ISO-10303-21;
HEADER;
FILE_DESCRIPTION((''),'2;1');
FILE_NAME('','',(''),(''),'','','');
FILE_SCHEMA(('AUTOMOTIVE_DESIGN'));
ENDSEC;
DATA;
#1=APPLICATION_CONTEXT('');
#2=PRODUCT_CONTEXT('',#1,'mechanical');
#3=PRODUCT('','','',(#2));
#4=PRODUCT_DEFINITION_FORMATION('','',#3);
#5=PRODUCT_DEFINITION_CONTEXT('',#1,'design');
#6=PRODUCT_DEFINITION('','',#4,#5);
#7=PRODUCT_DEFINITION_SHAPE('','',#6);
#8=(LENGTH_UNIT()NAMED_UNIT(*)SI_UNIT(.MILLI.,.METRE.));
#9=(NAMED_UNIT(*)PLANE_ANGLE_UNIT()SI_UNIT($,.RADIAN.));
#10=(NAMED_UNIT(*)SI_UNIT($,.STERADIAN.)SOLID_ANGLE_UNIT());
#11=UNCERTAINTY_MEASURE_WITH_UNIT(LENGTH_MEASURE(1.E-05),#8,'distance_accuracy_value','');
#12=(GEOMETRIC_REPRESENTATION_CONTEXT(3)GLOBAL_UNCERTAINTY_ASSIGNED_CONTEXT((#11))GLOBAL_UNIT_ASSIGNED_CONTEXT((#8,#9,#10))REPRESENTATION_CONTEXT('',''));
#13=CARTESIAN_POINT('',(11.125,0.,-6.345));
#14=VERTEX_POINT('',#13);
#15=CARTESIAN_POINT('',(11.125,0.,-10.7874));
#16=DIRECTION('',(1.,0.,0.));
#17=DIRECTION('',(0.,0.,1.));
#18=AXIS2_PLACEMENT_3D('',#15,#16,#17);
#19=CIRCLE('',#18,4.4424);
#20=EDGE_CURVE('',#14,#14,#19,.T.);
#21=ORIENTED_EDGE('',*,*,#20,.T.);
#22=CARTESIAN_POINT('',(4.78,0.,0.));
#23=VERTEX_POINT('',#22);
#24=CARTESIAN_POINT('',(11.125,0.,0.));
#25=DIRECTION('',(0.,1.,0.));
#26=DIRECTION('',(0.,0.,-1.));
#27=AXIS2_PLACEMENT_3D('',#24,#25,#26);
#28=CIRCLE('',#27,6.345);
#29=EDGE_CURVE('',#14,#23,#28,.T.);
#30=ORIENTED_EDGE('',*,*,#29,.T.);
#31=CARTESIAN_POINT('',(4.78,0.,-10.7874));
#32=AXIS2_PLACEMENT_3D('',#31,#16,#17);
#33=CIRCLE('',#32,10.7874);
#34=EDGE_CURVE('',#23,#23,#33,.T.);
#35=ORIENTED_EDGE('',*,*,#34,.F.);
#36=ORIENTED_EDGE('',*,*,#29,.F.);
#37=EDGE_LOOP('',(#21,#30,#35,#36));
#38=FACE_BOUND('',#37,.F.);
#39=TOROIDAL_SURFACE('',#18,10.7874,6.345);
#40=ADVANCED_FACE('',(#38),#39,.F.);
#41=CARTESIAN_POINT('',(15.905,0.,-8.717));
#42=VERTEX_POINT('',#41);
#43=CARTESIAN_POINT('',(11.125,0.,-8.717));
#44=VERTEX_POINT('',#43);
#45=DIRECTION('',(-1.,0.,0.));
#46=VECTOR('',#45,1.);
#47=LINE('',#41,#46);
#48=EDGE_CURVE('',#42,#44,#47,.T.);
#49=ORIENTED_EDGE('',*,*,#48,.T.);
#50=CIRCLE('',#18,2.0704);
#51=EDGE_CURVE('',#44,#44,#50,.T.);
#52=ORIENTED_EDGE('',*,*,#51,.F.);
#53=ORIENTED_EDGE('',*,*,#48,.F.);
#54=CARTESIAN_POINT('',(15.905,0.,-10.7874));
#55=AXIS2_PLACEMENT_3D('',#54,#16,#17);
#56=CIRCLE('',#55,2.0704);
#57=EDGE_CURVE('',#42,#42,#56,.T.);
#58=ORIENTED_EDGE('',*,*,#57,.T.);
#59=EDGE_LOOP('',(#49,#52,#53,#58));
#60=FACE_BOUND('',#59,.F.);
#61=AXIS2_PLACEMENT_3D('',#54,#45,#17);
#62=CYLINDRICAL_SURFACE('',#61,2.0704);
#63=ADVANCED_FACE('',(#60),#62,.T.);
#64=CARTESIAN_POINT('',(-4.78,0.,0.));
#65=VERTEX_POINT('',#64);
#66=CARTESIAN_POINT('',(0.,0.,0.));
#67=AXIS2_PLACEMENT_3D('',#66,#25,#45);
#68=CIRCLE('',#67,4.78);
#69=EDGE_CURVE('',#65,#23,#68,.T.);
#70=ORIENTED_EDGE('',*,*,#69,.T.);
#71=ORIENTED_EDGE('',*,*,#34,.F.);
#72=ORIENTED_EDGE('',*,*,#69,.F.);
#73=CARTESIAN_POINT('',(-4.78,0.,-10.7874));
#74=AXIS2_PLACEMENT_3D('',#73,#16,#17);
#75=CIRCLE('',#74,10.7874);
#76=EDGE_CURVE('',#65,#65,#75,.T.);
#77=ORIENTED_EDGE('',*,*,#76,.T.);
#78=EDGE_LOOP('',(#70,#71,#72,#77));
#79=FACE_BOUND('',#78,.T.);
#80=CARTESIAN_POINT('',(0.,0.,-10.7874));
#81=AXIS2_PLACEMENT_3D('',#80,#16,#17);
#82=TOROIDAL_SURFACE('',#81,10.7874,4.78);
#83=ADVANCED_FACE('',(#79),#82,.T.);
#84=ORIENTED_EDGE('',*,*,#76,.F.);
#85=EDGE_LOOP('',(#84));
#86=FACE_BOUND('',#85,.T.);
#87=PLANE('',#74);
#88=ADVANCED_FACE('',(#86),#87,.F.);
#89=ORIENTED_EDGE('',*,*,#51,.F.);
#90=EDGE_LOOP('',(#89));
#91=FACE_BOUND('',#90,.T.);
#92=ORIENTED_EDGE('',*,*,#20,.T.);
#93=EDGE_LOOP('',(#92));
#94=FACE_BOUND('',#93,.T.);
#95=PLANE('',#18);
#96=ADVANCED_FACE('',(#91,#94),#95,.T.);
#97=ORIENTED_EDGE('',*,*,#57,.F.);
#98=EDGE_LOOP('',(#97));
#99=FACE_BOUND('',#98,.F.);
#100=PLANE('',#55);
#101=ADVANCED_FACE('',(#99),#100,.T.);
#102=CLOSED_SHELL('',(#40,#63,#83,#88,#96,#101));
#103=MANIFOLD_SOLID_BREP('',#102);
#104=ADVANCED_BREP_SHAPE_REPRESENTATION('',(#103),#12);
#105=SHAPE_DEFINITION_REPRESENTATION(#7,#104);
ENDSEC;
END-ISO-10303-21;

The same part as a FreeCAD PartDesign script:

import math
import FreeCAD as App
import Part
import Sketcher
from FreeCAD import Vector

doc = App.newDocument("Part")
body = doc.addObject("PartDesign::Body", "Body")

# Sketch on XZ plane
sketch1 = body.newObject("Sketcher::SketchObject", "Sketch")
sketch1.AttachmentSupport = (doc.getObject("XZ_Plane"), [""])
sketch1.MapMode = "FlatFace"
sketch1.addGeometry([
    Part.ArcOfCircle(Part.Circle(Vector(0, 0, 0), Vector(0, 0, 1), 4.8), math.radians(0), math.radians(180)),  # 0
    Part.ArcOfCircle(Part.Circle(Vector(11.1, 0, 0), Vector(0, 0, 1), 6.3), math.radians(180), math.radians(270)),  # 1
    Part.LineSegment(Vector(11.1, -6.3, 0), Vector(11.1, -8.7, 0)),  # 2
    Part.LineSegment(Vector(11.1, -8.7, 0), Vector(15.9, -8.7, 0)),  # 3
    Part.LineSegment(Vector(15.9, -8.7, 0), Vector(15.9, -10.8, 0)),  # 4
    Part.LineSegment(Vector(15.9, -10.8, 0), Vector(-4.8, -10.8, 0)),  # 5
    Part.LineSegment(Vector(-4.8, -10.8, 0), Vector(-4.8, 0, 0)),  # 6
], False)
sketch1.addGeometry(Part.LineSegment(Vector(-4.8, -10.8, 0), Vector(15.9, -10.8, 0)), True)  # axis
sketch1.addConstraint([
    Sketcher.Constraint("Tangent", 0, 1, 1, 1),
    Sketcher.Constraint("Coincident", 1, 2, 2, 1),
    Sketcher.Constraint("Coincident", 2, 2, 3, 1),
    Sketcher.Constraint("Coincident", 3, 2, 4, 1),
    Sketcher.Constraint("Coincident", 4, 2, 5, 1),
    Sketcher.Constraint("Coincident", 5, 2, 6, 1),
    Sketcher.Constraint("Tangent", 6, 2, 0, 2),
    Sketcher.Constraint("Vertical", 2),
    Sketcher.Constraint("Horizontal", 3),
    Sketcher.Constraint("Vertical", 4),
    Sketcher.Constraint("Horizontal", 5),
    Sketcher.Constraint("Vertical", 6),
    Sketcher.Constraint("Horizontal", 7),
    Sketcher.Constraint("Coincident", 0, 3, -1, 1),
    Sketcher.Constraint("Coincident", 7, 1, 5, 2),
    Sketcher.Constraint("PointOnObject", 1, 3, -1),
    Sketcher.Constraint("Vertical", 3, 2, 7, 2),
    Sketcher.Constraint("Radius", 0, 4.78),
    Sketcher.Constraint("Radius", 1, 6.345),
    Sketcher.Constraint("DistanceX", 3, 1, 3, 2, 4.78),
    Sketcher.Constraint("DistanceX", 5, 2, 5, 1, 20.685),
    Sketcher.Constraint("DistanceY", 2, 2, 2, 1, 2.372),
    Sketcher.Constraint("DistanceY", 4, 2, 4, 1, 2.0704),
])
revolution = body.newObject("PartDesign::Revolution", "Revolution")
revolution.Profile = sketch1
revolution.ReferenceAxis = (sketch1, ["Axis0"])
revolution.Angle = 360

doc.recompute()
